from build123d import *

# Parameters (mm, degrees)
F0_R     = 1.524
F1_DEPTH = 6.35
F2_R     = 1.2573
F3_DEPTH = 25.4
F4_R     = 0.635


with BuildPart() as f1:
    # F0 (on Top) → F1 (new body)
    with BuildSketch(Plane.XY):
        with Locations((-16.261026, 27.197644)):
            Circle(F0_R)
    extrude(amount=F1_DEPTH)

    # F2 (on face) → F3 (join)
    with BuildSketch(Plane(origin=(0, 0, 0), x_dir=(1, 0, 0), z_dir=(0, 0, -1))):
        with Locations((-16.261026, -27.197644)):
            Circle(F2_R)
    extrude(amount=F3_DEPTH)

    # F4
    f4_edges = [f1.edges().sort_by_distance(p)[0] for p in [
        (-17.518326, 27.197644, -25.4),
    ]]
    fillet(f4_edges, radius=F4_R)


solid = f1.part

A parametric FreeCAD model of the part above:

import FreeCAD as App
import Part
import Sketcher
Q = App.Units.Quantity


def edges_at(feature, points):
    """Names of the edges that pass closest to the given points."""
    edges = feature.Shape.Edges
    near = lambda p: min(range(len(edges)), key=lambda i: edges[i].distToShape(Part.Vertex(*p))[0])
    return sorted({f"Edge{near(p) + 1}" for p in points})

doc = App.newDocument("Part")
body = doc.addObject("PartDesign::Body", "Body")

sketch1 = body.newObject("Sketcher::SketchObject", "Sketch")
sketch1.AttachmentSupport = (doc.getObject("XY_Plane"), [""])
sketch1.MapMode = "FlatFace"
sketch1.addGeometry(Part.Circle(App.Vector(-16.3, 27.2, 0), App.Vector(0, 0, 1), 1.5), False)
sketch1.addConstraint([
    Sketcher.Constraint("Diameter", 0, Q("0.12 in")),
    Sketcher.Constraint("DistanceX", 0, 3, -1, 1, Q("16.261026 mm")),
    Sketcher.Constraint("DistanceY", -1, 1, 0, 3, Q("27.197644 mm")),
])
pad1 = body.newObject("PartDesign::Pad", "Pad")
pad1.Profile = sketch1
pad1.Length = Q("0.25 in")

sketch2 = body.newObject("Sketcher::SketchObject", "Sketch001")
sketch2.AttachmentSupport = (doc.getObject("XY_Plane"), [""])
sketch2.MapMode = "FlatFace"
sketch2.addGeometry(Part.Circle(App.Vector(-16.3, 27.2, 0), App.Vector(0, 0, 1), 1.3), False)
sketch2.addConstraint([
    Sketcher.Constraint("Diameter", 0, Q("0.099 in")),
    Sketcher.Constraint("DistanceX", 0, 3, -1, 1, Q("16.261026 mm")),
    Sketcher.Constraint("DistanceY", -1, 1, 0, 3, Q("27.197644 mm")),
])
pad2 = body.newObject("PartDesign::Pad", "Pad001")
pad2.Profile = sketch2
pad2.Length = Q("1 in")
pad2.Reversed = True
doc.recompute()

fillet = body.newObject("PartDesign::Fillet", "Fillet")
fillet.Base = (pad2, edges_at(pad2, [(-17.518, 27.198, -25.4)]))
fillet.Radius = Q("0.025 in")

doc.recompute()
